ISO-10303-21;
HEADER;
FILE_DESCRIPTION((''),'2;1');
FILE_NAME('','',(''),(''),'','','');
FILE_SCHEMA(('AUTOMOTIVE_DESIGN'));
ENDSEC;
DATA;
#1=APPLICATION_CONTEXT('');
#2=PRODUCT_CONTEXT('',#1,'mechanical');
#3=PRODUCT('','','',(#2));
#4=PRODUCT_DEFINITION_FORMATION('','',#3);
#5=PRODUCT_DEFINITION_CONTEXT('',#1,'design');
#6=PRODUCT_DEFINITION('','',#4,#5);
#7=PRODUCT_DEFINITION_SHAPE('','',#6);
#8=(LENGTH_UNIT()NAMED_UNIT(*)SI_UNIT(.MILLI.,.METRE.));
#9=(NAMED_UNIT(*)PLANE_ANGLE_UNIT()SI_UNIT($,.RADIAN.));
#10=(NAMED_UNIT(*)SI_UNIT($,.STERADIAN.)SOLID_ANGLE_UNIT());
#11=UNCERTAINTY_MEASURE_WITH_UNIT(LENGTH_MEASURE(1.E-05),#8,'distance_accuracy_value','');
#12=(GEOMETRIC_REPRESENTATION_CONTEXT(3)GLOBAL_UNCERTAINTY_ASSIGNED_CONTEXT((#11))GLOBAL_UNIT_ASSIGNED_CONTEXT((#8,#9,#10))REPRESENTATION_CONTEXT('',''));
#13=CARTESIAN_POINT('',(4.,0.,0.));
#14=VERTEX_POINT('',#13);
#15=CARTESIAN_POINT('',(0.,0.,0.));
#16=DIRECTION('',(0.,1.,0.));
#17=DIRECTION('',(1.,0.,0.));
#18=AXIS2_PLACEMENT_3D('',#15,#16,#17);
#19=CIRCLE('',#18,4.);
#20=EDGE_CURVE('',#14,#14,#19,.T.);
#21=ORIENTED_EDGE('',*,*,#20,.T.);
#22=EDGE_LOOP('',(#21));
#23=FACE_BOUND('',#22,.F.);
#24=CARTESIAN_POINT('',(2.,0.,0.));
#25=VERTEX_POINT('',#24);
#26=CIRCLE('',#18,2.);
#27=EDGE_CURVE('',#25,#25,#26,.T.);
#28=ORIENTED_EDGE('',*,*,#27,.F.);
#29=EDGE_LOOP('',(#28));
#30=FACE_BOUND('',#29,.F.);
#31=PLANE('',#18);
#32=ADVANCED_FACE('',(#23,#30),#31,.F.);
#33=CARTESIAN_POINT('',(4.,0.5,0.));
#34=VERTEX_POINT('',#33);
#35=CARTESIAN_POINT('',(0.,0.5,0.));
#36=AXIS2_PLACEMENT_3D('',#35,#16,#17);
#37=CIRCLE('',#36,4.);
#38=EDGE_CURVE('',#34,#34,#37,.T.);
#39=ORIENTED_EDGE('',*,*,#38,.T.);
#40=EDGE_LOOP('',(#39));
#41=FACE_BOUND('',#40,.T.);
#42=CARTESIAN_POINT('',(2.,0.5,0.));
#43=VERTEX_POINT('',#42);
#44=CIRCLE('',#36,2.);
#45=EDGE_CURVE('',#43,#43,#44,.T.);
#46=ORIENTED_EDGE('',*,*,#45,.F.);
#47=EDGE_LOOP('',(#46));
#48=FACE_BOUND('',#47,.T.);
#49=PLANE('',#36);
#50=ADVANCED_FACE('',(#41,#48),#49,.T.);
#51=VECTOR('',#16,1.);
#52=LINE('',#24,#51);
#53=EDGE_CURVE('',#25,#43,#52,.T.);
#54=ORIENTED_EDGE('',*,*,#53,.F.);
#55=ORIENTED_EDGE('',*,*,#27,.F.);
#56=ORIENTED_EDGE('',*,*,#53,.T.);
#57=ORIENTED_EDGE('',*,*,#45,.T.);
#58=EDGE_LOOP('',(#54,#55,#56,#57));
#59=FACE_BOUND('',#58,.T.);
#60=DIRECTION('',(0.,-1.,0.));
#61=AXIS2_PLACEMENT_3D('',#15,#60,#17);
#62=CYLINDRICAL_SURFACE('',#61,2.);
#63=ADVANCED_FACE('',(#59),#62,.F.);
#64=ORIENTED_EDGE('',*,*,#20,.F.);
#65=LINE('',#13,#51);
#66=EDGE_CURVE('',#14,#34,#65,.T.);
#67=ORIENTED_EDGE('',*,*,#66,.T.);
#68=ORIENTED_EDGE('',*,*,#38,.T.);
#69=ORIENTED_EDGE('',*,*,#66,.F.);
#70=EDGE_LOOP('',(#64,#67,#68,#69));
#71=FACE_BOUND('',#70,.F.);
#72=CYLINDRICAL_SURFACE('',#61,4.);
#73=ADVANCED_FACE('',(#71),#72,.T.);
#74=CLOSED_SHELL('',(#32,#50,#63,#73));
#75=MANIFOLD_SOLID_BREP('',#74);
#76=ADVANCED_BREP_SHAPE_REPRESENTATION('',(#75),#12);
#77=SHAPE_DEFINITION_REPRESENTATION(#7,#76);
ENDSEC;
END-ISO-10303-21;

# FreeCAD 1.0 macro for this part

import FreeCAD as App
import Part
import Sketcher

V = App.Vector
Q = App.Units.Quantity

doc = App.newDocument("Part")
body = doc.addObject("PartDesign::Body", "Body")

sketch1 = body.newObject("Sketcher::SketchObject", "Sketch")
sketch1.AttachmentSupport = (doc.getObject("XZ_Plane"), [""])
sketch1.MapMode = "FlatFace"
sketch1.addGeometry(Part.Circle(V(0, 0, 0), V(0, 0, 1), 4), False)
sketch1.addGeometry(Part.Circle(V(0, 0, 0), V(0, 0, 1), 2), False)
sketch1.addConstraint(Sketcher.Constraint("Coincident", 0, 3, -1, 1))
sketch1.addConstraint(Sketcher.Constraint("Coincident", 1, 3, -1, 1))
sketch1.addConstraint(Sketcher.Constraint("Diameter", 0, Q("8 mm")))
sketch1.addConstraint(Sketcher.Constraint("Diameter", 1, Q("4 mm")))
pad1 = body.newObject("PartDesign::Pad", "Pad")
pad1.Profile = sketch1
pad1.Length = 0.5
pad1.Reversed = True

doc.recompute()
